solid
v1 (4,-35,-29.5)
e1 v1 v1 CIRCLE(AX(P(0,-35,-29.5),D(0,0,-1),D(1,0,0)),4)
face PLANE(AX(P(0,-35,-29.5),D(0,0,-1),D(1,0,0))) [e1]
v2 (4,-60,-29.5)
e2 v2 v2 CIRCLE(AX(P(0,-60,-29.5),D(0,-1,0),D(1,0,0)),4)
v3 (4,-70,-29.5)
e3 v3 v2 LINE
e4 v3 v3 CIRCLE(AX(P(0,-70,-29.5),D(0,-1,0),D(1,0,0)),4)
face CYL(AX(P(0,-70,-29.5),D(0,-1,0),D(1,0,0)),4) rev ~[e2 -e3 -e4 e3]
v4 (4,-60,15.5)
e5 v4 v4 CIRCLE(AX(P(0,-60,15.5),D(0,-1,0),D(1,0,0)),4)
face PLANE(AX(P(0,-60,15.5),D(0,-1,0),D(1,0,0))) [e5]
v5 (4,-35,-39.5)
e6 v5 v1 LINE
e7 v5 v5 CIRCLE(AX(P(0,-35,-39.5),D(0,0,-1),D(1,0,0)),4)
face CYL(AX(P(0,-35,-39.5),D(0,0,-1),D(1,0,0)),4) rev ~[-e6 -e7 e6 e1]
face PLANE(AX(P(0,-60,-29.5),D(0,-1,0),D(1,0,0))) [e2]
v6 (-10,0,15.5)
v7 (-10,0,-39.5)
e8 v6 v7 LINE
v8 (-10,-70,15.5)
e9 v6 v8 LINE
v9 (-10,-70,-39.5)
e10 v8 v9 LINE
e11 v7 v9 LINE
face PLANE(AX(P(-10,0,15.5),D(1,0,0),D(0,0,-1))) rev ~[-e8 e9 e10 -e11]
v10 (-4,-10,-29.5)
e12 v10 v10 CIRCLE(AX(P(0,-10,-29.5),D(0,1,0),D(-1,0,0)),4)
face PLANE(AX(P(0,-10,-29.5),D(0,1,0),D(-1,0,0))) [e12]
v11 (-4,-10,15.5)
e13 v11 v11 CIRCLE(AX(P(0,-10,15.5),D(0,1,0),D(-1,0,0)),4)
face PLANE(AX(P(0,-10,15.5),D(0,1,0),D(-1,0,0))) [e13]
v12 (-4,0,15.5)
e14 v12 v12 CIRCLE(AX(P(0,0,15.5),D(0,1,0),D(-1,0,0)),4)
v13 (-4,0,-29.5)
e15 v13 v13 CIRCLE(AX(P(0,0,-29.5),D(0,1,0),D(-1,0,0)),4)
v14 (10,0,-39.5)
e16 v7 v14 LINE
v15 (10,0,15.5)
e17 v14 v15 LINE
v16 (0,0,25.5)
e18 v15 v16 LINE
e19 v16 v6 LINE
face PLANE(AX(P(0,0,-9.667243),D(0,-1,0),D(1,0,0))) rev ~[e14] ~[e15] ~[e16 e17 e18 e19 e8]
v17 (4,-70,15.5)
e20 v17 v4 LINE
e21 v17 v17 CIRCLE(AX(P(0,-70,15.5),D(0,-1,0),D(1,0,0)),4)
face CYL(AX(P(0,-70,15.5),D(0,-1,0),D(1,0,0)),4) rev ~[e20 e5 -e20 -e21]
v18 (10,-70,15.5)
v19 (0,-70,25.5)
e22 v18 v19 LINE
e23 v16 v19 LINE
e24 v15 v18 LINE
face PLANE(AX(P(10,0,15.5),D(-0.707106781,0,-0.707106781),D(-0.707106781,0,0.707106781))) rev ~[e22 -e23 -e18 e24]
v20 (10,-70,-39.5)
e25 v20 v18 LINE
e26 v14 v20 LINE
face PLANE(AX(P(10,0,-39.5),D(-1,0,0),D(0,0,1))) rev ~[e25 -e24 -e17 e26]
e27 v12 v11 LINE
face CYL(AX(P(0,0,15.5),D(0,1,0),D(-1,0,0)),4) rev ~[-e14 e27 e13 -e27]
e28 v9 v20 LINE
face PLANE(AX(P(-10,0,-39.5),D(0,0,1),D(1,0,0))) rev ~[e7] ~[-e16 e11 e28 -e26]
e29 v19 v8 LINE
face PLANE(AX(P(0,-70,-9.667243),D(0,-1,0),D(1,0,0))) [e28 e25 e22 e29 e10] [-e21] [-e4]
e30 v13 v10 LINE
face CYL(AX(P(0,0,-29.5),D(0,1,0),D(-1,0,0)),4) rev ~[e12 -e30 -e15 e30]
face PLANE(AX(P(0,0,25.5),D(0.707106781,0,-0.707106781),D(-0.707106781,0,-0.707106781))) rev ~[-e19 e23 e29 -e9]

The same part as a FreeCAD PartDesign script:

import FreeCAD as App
import Part
import Sketcher

V = App.Vector
Q = App.Units.Quantity

doc = App.newDocument("Part")
body = doc.addObject("PartDesign::Body", "Body")

# Sketch on XZ plane
sketch1 = body.newObject("Sketcher::SketchObject", "Sketch")
sketch1.AttachmentSupport = (doc.getObject("XZ_Plane"), [""])
sketch1.MapMode = "FlatFace"
sketch1.addGeometry([
    Part.LineSegment(V(0, 26, 0), V(-10, 16, 0)),  # 0
    Part.LineSegment(V(-10, 16, 0), V(-10, -40, 0)),  # 1
    Part.LineSegment(V(-10, -40, 0), V(10, -40, 0)),  # 2
    Part.LineSegment(V(10, -40, 0), V(10, 16, 0)),  # 3
    Part.LineSegment(V(10, 16, 0), V(0, 26, 0)),  # 4
], False)
sketch1.addConstraint([
    Sketcher.Constraint("Coincident", 0, 2, 1, 1),
    Sketcher.Constraint("Coincident", 1, 2, 2, 1),
    Sketcher.Constraint("Coincident", 2, 2, 3, 1),
    Sketcher.Constraint("Coincident", 3, 2, 4, 1),
    Sketcher.Constraint("Coincident", 4, 2, 0, 1),
    Sketcher.Constraint("Vertical", 1),
    Sketcher.Constraint("Horizontal", 2),
    Sketcher.Constraint("Vertical", 3),
    Sketcher.Constraint("Symmetric", 0, 2, 3, 2, -2),
    Sketcher.Constraint("PointOnObject", 4, 2, -2),
    Sketcher.Constraint("Perpendicular", 0, 4),
    Sketcher.Constraint("DistanceX", 2, 1, 2, 2, Q("20 mm")),
    Sketcher.Constraint("DistanceY", 1, 2, 1, 1, Q("55 mm")),
    Sketcher.Constraint("DistanceY", -1, 1, 0, 2, Q("15.5 mm")),
])
pad1 = body.newObject("PartDesign::Pad", "Pad")
pad1.Profile = sketch1
pad1.Length = 70

# Sketch on XZ plane
sketch2 = body.newObject("Sketcher::SketchObject", "Sketch001")
sketch2.AttachmentSupport = (doc.getObject("XZ_Plane"), [""])
sketch2.MapMode = "FlatFace"
sketch2.AttachmentOffset = App.Placement(V(0, 0, 70), App.Rotation())
sketch2.addGeometry(Part.Circle(V(0, -29.5, 0), V(0, 0, 1), 4), False)
sketch2.addConstraint([
    Sketcher.Constraint("PointOnObject", 0, 3, -2),
    Sketcher.Constraint("Diameter", 0, Q("8 mm")),
    Sketcher.Constraint("DistanceY", 0, 3, -1, 1, Q("29.5 mm")),
])
pocket1 = body.newObject("PartDesign::Pocket", "Pocket")
pocket1.Profile = sketch2
pocket1.Length = 10

# Sketch on XZ plane
sketch3 = body.newObject("Sketcher::SketchObject", "Sketch002")
sketch3.AttachmentSupport = (doc.getObject("XZ_Plane"), [""])
sketch3.MapMode = "FlatFace"
sketch3.AttachmentOffset = App.Placement(V(0, 0, 70), App.Rotation())
sketch3.addGeometry(Part.Circle(V(0, 15.5, 0), V(0, 0, 1), 4), False)
sketch3.addConstraint([
    Sketcher.Constraint("PointOnObject", 0, 3, -2),
    Sketcher.Constraint("Diameter", 0, Q("8 mm")),
    Sketcher.Constraint("DistanceY", -1, 1, 0, 3, Q("15.5 mm")),
])
pocket2 = body.newObject("PartDesign::Pocket", "Pocket001")
pocket2.Profile = sketch3
pocket2.Length = 10

# Sketch on XZ plane
sketch4 = body.newObject("Sketcher::SketchObject", "Sketch003")
sketch4.AttachmentSupport = (doc.getObject("XZ_Plane"), [""])
sketch4.MapMode = "FlatFace"
sketch4.addGeometry(Part.Circle(V(0, -29.5, 0), V(0, 0, 1), 4), False)
sketch4.addConstraint([
    Sketcher.Constraint("PointOnObject", 0, 3, -2),
    Sketcher.Constraint("Diameter", 0, Q("8 mm")),
    Sketcher.Constraint("DistanceY", 0, 3, -1, 1, Q("29.5 mm")),
])
pocket3 = body.newObject("PartDesign::Pocket", "Pocket002")
pocket3.Profile = sketch4
pocket3.Length = 10
pocket3.Reversed = True

# Sketch on XZ plane
sketch5 = body.newObject("Sketcher::SketchObject", "Sketch004")
sketch5.AttachmentSupport = (doc.getObject("XZ_Plane"), [""])
sketch5.MapMode = "FlatFace"
sketch5.addGeometry(Part.Circle(V(0, 15.5, 0), V(0, 0, 1), 4), False)
sketch5.addConstraint([
    Sketcher.Constraint("PointOnObject", 0, 3, -2),
    Sketcher.Constraint("Diameter", 0, Q("8 mm")),
    Sketcher.Constraint("DistanceY", -1, 1, 0, 3, Q("15.5 mm")),
])
pocket4 = body.newObject("PartDesign::Pocket", "Pocket003")
pocket4.Profile = sketch5
pocket4.Length = 10
pocket4.Reversed = True

# Sketch on XY plane
sketch6 = body.newObject("Sketcher::SketchObject", "Sketch005")
sketch6.AttachmentSupport = (doc.getObject("XY_Plane"), [""])
sketch6.MapMode = "FlatFace"
sketch6.AttachmentOffset = App.Placement(V(0, 0, -39.5), App.Rotation())
sketch6.addGeometry(Part.Circle(V(0, -35, 0), V(0, 0, 1), 4), False)
sketch6.addConstraint([
    Sketcher.Constraint("PointOnObject", 0, 3, -2),
    Sketcher.Constraint("Diameter", 0, Q("8 mm")),
    Sketcher.Constraint("DistanceY", 0, 3, -1, 1, Q("35 mm")),
])
pocket5 = body.newObject("PartDesign::Pocket", "Pocket004")
pocket5.Profile = sketch6
pocket5.Length = 10
pocket5.Reversed = True

doc.recompute()
